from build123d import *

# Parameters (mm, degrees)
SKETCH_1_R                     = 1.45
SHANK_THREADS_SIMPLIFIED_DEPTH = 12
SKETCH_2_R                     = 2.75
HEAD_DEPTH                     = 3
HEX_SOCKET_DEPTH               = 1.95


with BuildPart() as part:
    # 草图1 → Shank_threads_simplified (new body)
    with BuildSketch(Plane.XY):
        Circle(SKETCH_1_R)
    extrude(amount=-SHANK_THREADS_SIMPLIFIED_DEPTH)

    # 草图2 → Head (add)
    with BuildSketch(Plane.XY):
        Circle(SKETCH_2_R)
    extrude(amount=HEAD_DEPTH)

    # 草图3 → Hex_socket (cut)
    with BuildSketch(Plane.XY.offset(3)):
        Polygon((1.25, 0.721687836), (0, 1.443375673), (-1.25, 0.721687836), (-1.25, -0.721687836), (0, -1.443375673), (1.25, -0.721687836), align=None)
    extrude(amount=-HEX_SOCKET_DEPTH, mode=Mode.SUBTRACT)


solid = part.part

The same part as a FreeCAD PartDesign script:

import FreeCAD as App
import Part
import Sketcher
Q = App.Units.Quantity

doc = App.newDocument("Part")
body = doc.addObject("PartDesign::Body", "Body")

# Sketch on XY plane
sketch1 = doc.addObject("Sketcher::SketchObject", "Sketch")
body.addObject(sketch1)
sketch1.AttachmentSupport = (doc.XY_Plane, [""])
sketch1.MapMode = "FlatFace"
sketch1.addGeometry(Part.Circle(App.Vector(0, 0, 0), App.Vector(0, 0, 1), 1.4), False)
sketch1.addConstraint([
    Sketcher.Constraint("Coincident", 0, 3, -1, 1),
    Sketcher.Constraint("Diameter", 0, 2.9),
])
pad1 = doc.addObject("PartDesign::Pad", "Pad")
body.addObject(pad1)
pad1.Profile = sketch1
pad1.Length = 12
pad1.Reversed = True

# Sketch on XY plane
sketch2 = doc.addObject("Sketcher::SketchObject", "Sketch001")
body.addObject(sketch2)
sketch2.AttachmentSupport = (doc.XY_Plane, [""])
sketch2.MapMode = "FlatFace"
sketch2.addGeometry(Part.Circle(App.Vector(0, 0, 0), App.Vector(0, 0, 1), 2.8), False)
sketch2.addConstraint([
    Sketcher.Constraint("Coincident", 0, 3, -1, 1),
    Sketcher.Constraint("Diameter", 0, 5.5),
])
pad2 = doc.addObject("PartDesign::Pad", "Pad001")
body.addObject(pad2)
pad2.Profile = sketch2
pad2.Length = 3

# Sketch on XY plane
sketch3 = doc.addObject("Sketcher::SketchObject", "Sketch002")
body.addObject(sketch3)
sketch3.AttachmentSupport = (doc.XY_Plane, [""])
sketch3.MapMode = "FlatFace"
sketch3.AttachmentOffset = App.Placement(App.Vector(0, 0, 3), App.Rotation())
sketch3.addGeometry([
    Part.LineSegment(App.Vector(1.2, 0.7, 0), App.Vector(0, 1.4, 0)),  # 0
    Part.LineSegment(App.Vector(0, 1.4, 0), App.Vector(-1.2, 0.7, 0)),  # 1
    Part.LineSegment(App.Vector(-1.2, 0.7, 0), App.Vector(-1.2, -0.7, 0)),  # 2
    Part.LineSegment(App.Vector(-1.2, -0.7, 0), App.Vector(0, -1.4, 0)),  # 3
    Part.LineSegment(App.Vector(0, -1.4, 0), App.Vector(1.2, -0.7, 0)),  # 4
    Part.LineSegment(App.Vector(1.2, -0.7, 0), App.Vector(1.2, 0.7, 0)),  # 5
], False)
sketch3.addConstraint([
    Sketcher.Constraint("Coincident", 0, 2, 1, 1),
    Sketcher.Constraint("Coincident", 1, 2, 2, 1),
    Sketcher.Constraint("Coincident", 2, 2, 3, 1),
    Sketcher.Constraint("Coincident", 3, 2, 4, 1),
    Sketcher.Constraint("Coincident", 4, 2, 5, 1),
    Sketcher.Constraint("Coincident", 5, 2, 0, 1),
    Sketcher.Constraint("Vertical", 2),
    Sketcher.Constraint("Vertical", 5),
    Sketcher.Constraint("Symmetric", 0, 2, 3, 2, -1, 1),
    Sketcher.Constraint("Symmetric", 1, 2, 4, 2, -1, 1),
    Sketcher.Constraint("PointOnObject", 0, 2, -2),
    Sketcher.Constraint("Parallel", 0, 3),
    Sketcher.Constraint("Horizontal", 2, 2, 4, 2),
    Sketcher.Constraint("Angle", 0, Q("150 deg")),
    Sketcher.Constraint("DistanceX", 2, 2, 4, 2, 2.5),
    Sketcher.Constraint("DistanceY", 2, 2, 2, 1, 1.443376),
])
pocket1 = doc.addObject("PartDesign::Pocket", "Pocket")
body.addObject(pocket1)
pocket1.Profile = sketch3
pocket1.Length = 1.95

doc.recompute()
